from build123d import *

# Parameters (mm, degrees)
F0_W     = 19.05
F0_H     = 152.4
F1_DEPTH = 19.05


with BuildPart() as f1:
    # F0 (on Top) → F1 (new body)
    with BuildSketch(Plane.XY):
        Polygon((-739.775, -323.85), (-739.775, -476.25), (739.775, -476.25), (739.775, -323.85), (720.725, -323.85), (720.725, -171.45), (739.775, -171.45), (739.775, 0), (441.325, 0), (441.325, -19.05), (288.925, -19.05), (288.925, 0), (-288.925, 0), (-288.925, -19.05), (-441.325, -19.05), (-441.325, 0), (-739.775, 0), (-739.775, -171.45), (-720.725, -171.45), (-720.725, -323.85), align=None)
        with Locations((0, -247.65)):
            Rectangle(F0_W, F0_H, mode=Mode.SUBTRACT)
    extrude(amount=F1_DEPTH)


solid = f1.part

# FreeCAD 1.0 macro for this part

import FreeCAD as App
import Part
import Sketcher
from FreeCAD import Vector
Q = App.Units.Quantity

doc = App.newDocument("Part")
body = doc.addObject("PartDesign::Body", "Body")

# Sketch on XY plane
sketch1 = body.newObject("Sketcher::SketchObject", "Sketch")
sketch1.AttachmentSupport = (doc.getObject("XY_Plane"), [""])
sketch1.MapMode = "FlatFace"
sketch1.addGeometry(Part.LineSegment(Vector(-739.775, -323.85, 0), Vector(-739.775, -476.25, 0)), False)
sketch1.addGeometry(Part.LineSegment(Vector(-739.775, -476.25, 0), Vector(739.775, -476.25, 0)), False)
sketch1.addGeometry(Part.LineSegment(Vector(739.775, -476.25, 0), Vector(739.775, -323.85, 0)), False)
sketch1.addGeometry(Part.LineSegment(Vector(739.775, -323.85, 0), Vector(720.725, -323.85, 0)), False)
sketch1.addGeometry(Part.LineSegment(Vector(720.725, -323.85, 0), Vector(720.725, -171.45, 0)), False)
sketch1.addGeometry(Part.LineSegment(Vector(720.725, -171.45, 0), Vector(739.775, -171.45, 0)), False)
sketch1.addGeometry(Part.LineSegment(Vector(739.775, -171.45, 0), Vector(739.775, 0, 0)), False)
sketch1.addGeometry(Part.LineSegment(Vector(739.775, 0, 0), Vector(441.325, 0, 0)), False)
sketch1.addGeometry(Part.LineSegment(Vector(441.325, 0, 0), Vector(441.325, -19.05, 0)), False)
sketch1.addGeometry(Part.LineSegment(Vector(441.325, -19.05, 0), Vector(288.925, -19.05, 0)), False)
sketch1.addGeometry(Part.LineSegment(Vector(288.925, -19.05, 0), Vector(288.925, 0, 0)), False)
sketch1.addGeometry(Part.LineSegment(Vector(288.925, 0, 0), Vector(-288.925, 0, 0)), False)
sketch1.addGeometry(Part.LineSegment(Vector(-288.925, 0, 0), Vector(-288.925, -19.05, 0)), False)
sketch1.addGeometry(Part.LineSegment(Vector(-288.925, -19.05, 0), Vector(-441.325, -19.05, 0)), False)
sketch1.addGeometry(Part.LineSegment(Vector(-441.325, -19.05, 0), Vector(-441.325, 0, 0)), False)
sketch1.addGeometry(Part.LineSegment(Vector(-441.325, 0, 0), Vector(-739.775, 0, 0)), False)
sketch1.addGeometry(Part.LineSegment(Vector(-739.775, 0, 0), Vector(-739.775, -171.45, 0)), False)
sketch1.addGeometry(Part.LineSegment(Vector(-739.775, -171.45, 0), Vector(-720.725, -171.45, 0)), False)
sketch1.addGeometry(Part.LineSegment(Vector(-720.725, -171.45, 0), Vector(-720.725, -323.85, 0)), False)
sketch1.addGeometry(Part.LineSegment(Vector(-720.725, -323.85, 0), Vector(-739.775, -323.85, 0)), False)
sketch1.addGeometry(Part.LineSegment(Vector(9.525, -323.85, 0), Vector(-9.525, -323.85, 0)), False)
sketch1.addGeometry(Part.LineSegment(Vector(-9.525, -323.85, 0), Vector(-9.525, -171.45, 0)), False)
sketch1.addGeometry(Part.LineSegment(Vector(-9.525, -171.45, 0), Vector(9.525, -171.45, 0)), False)
sketch1.addGeometry(Part.LineSegment(Vector(9.525, -171.45, 0), Vector(9.525, -323.85, 0)), False)
sketch1.addConstraint(Sketcher.Constraint("Coincident", 0, 2, 1, 1))
sketch1.addConstraint(Sketcher.Constraint("Coincident", 1, 2, 2, 1))
sketch1.addConstraint(Sketcher.Constraint("Coincident", 2, 2, 3, 1))
sketch1.addConstraint(Sketcher.Constraint("Coincident", 3, 2, 4, 1))
sketch1.addConstraint(Sketcher.Constraint("Coincident", 4, 2, 5, 1))
sketch1.addConstraint(Sketcher.Constraint("Coincident", 5, 2, 6, 1))
sketch1.addConstraint(Sketcher.Constraint("Coincident", 6, 2, 7, 1))
sketch1.addConstraint(Sketcher.Constraint("Coincident", 7, 2, 8, 1))
sketch1.addConstraint(Sketcher.Constraint("Coincident", 8, 2, 9, 1))
sketch1.addConstraint(Sketcher.Constraint("Coincident", 9, 2, 10, 1))
sketch1.addConstraint(Sketcher.Constraint("Coincident", 10, 2, 11, 1))
sketch1.addConstraint(Sketcher.Constraint("Coincident", 11, 2, 12, 1))
sketch1.addConstraint(Sketcher.Constraint("Coincident", 12, 2, 13, 1))
sketch1.addConstraint(Sketcher.Constraint("Coincident", 13, 2, 14, 1))
sketch1.addConstraint(Sketcher.Constraint("Coincident", 14, 2, 15, 1))
sketch1.addConstraint(Sketcher.Constraint("Coincident", 15, 2, 16, 1))
sketch1.addConstraint(Sketcher.Constraint("Coincident", 16, 2, 17, 1))
sketch1.addConstraint(Sketcher.Constraint("Coincident", 17, 2, 18, 1))
sketch1.addConstraint(Sketcher.Constraint("Coincident", 18, 2, 19, 1))
sketch1.addConstraint(Sketcher.Constraint("Coincident", 19, 2, 0, 1))
sketch1.addConstraint(Sketcher.Constraint("Coincident", 20, 2, 21, 1))
sketch1.addConstraint(Sketcher.Constraint("Coincident", 21, 2, 22, 1))
sketch1.addConstraint(Sketcher.Constraint("Coincident", 22, 2, 23, 1))
sketch1.addConstraint(Sketcher.Constraint("Coincident", 23, 2, 20, 1))
sketch1.addConstraint(Sketcher.Constraint("Vertical", 0))
sketch1.addConstraint(Sketcher.Constraint("Horizontal", 1))
sketch1.addConstraint(Sketcher.Constraint("Vertical", 2))
sketch1.addConstraint(Sketcher.Constraint("Horizontal", 3))
sketch1.addConstraint(Sketcher.Constraint("Vertical", 4))
sketch1.addConstraint(Sketcher.Constraint("Horizontal", 5))
sketch1.addConstraint(Sketcher.Constraint("Vertical", 6))
sketch1.addConstraint(Sketcher.Constraint("Horizontal", 7))
sketch1.addConstraint(Sketcher.Constraint("Vertical", 8))
sketch1.addConstraint(Sketcher.Constraint("Horizontal", 9))
sketch1.addConstraint(Sketcher.Constraint("Vertical", 10))
sketch1.addConstraint(Sketcher.Constraint("Horizontal", 11))
sketch1.addConstraint(Sketcher.Constraint("Vertical", 12))
sketch1.addConstraint(Sketcher.Constraint("Horizontal", 13))
sketch1.addConstraint(Sketcher.Constraint("Vertical", 14))
sketch1.addConstraint(Sketcher.Constraint("Horizontal", 15))
sketch1.addConstraint(Sketcher.Constraint("Vertical", 16))
sketch1.addConstraint(Sketcher.Constraint("Horizontal", 17))
sketch1.addConstraint(Sketcher.Constraint("Vertical", 18))
sketch1.addConstraint(Sketcher.Constraint("Horizontal", 19))
sketch1.addConstraint(Sketcher.Constraint("Horizontal", 20))
sketch1.addConstraint(Sketcher.Constraint("Vertical", 21))
sketch1.addConstraint(Sketcher.Constraint("Horizontal", 22))
sketch1.addConstraint(Sketcher.Constraint("Vertical", 23))
sketch1.addConstraint(Sketcher.Constraint("Symmetric", 10, 2, 11, 2, -1, 1))
sketch1.addConstraint(Sketcher.Constraint("Symmetric", 7, 2, 14, 2, -1, 1))
sketch1.addConstraint(Sketcher.Constraint("Symmetric", 6, 2, 15, 2, -2))
sketch1.addConstraint(Sketcher.Constraint("Symmetric", 4, 2, 17, 2, -2))
sketch1.addConstraint(Sketcher.Constraint("Symmetric", 2, 2, 19, 2, -2))
sketch1.addConstraint(Sketcher.Constraint("Horizontal", 9, 2, 12, 2))
sketch1.addConstraint(Sketcher.Constraint("Horizontal", 19, 2, 20, 2))
sketch1.addConstraint(Sketcher.Constraint("Horizontal", 17, 2, 21, 2))
sketch1.addConstraint(Sketcher.Constraint("Vertical", 2, 2, 5, 2))
sketch1.addConstraint(Sketcher.Constraint("Equal", 19, 20))
sketch1.addConstraint(Sketcher.Constraint("Equal", 13, 0))
sketch1.addConstraint(Sketcher.Constraint("Equal", 2, 4))
sketch1.addConstraint(Sketcher.Constraint("Equal", 22, 8))
sketch1.addConstraint(Sketcher.Constraint("DistanceX", 9, 2, 9, 1, Q("6 in")))
sketch1.addConstraint(Sketcher.Constraint("DistanceX", 7, 2, 4, 2, Q("11 in")))
sketch1.addConstraint(Sketcher.Constraint("DistanceY", 4, 2, 8, 2, Q("6 in")))
sketch1.addConstraint(Sketcher.Constraint("DistanceX", 12, 2, 20, 2, Q("11 in")))
sketch1.addConstraint(Sketcher.Constraint("DistanceX", 22, 2, 9, 2, Q("11 in")))
sketch1.addConstraint(Sketcher.Constraint("DistanceX", 1, 1, 1, 2, Q("58.25 in")))
pad1 = body.newObject("PartDesign::Pad", "Pad")
pad1.Profile = sketch1
pad1.Length = Q("0.75 in")

doc.recompute()
